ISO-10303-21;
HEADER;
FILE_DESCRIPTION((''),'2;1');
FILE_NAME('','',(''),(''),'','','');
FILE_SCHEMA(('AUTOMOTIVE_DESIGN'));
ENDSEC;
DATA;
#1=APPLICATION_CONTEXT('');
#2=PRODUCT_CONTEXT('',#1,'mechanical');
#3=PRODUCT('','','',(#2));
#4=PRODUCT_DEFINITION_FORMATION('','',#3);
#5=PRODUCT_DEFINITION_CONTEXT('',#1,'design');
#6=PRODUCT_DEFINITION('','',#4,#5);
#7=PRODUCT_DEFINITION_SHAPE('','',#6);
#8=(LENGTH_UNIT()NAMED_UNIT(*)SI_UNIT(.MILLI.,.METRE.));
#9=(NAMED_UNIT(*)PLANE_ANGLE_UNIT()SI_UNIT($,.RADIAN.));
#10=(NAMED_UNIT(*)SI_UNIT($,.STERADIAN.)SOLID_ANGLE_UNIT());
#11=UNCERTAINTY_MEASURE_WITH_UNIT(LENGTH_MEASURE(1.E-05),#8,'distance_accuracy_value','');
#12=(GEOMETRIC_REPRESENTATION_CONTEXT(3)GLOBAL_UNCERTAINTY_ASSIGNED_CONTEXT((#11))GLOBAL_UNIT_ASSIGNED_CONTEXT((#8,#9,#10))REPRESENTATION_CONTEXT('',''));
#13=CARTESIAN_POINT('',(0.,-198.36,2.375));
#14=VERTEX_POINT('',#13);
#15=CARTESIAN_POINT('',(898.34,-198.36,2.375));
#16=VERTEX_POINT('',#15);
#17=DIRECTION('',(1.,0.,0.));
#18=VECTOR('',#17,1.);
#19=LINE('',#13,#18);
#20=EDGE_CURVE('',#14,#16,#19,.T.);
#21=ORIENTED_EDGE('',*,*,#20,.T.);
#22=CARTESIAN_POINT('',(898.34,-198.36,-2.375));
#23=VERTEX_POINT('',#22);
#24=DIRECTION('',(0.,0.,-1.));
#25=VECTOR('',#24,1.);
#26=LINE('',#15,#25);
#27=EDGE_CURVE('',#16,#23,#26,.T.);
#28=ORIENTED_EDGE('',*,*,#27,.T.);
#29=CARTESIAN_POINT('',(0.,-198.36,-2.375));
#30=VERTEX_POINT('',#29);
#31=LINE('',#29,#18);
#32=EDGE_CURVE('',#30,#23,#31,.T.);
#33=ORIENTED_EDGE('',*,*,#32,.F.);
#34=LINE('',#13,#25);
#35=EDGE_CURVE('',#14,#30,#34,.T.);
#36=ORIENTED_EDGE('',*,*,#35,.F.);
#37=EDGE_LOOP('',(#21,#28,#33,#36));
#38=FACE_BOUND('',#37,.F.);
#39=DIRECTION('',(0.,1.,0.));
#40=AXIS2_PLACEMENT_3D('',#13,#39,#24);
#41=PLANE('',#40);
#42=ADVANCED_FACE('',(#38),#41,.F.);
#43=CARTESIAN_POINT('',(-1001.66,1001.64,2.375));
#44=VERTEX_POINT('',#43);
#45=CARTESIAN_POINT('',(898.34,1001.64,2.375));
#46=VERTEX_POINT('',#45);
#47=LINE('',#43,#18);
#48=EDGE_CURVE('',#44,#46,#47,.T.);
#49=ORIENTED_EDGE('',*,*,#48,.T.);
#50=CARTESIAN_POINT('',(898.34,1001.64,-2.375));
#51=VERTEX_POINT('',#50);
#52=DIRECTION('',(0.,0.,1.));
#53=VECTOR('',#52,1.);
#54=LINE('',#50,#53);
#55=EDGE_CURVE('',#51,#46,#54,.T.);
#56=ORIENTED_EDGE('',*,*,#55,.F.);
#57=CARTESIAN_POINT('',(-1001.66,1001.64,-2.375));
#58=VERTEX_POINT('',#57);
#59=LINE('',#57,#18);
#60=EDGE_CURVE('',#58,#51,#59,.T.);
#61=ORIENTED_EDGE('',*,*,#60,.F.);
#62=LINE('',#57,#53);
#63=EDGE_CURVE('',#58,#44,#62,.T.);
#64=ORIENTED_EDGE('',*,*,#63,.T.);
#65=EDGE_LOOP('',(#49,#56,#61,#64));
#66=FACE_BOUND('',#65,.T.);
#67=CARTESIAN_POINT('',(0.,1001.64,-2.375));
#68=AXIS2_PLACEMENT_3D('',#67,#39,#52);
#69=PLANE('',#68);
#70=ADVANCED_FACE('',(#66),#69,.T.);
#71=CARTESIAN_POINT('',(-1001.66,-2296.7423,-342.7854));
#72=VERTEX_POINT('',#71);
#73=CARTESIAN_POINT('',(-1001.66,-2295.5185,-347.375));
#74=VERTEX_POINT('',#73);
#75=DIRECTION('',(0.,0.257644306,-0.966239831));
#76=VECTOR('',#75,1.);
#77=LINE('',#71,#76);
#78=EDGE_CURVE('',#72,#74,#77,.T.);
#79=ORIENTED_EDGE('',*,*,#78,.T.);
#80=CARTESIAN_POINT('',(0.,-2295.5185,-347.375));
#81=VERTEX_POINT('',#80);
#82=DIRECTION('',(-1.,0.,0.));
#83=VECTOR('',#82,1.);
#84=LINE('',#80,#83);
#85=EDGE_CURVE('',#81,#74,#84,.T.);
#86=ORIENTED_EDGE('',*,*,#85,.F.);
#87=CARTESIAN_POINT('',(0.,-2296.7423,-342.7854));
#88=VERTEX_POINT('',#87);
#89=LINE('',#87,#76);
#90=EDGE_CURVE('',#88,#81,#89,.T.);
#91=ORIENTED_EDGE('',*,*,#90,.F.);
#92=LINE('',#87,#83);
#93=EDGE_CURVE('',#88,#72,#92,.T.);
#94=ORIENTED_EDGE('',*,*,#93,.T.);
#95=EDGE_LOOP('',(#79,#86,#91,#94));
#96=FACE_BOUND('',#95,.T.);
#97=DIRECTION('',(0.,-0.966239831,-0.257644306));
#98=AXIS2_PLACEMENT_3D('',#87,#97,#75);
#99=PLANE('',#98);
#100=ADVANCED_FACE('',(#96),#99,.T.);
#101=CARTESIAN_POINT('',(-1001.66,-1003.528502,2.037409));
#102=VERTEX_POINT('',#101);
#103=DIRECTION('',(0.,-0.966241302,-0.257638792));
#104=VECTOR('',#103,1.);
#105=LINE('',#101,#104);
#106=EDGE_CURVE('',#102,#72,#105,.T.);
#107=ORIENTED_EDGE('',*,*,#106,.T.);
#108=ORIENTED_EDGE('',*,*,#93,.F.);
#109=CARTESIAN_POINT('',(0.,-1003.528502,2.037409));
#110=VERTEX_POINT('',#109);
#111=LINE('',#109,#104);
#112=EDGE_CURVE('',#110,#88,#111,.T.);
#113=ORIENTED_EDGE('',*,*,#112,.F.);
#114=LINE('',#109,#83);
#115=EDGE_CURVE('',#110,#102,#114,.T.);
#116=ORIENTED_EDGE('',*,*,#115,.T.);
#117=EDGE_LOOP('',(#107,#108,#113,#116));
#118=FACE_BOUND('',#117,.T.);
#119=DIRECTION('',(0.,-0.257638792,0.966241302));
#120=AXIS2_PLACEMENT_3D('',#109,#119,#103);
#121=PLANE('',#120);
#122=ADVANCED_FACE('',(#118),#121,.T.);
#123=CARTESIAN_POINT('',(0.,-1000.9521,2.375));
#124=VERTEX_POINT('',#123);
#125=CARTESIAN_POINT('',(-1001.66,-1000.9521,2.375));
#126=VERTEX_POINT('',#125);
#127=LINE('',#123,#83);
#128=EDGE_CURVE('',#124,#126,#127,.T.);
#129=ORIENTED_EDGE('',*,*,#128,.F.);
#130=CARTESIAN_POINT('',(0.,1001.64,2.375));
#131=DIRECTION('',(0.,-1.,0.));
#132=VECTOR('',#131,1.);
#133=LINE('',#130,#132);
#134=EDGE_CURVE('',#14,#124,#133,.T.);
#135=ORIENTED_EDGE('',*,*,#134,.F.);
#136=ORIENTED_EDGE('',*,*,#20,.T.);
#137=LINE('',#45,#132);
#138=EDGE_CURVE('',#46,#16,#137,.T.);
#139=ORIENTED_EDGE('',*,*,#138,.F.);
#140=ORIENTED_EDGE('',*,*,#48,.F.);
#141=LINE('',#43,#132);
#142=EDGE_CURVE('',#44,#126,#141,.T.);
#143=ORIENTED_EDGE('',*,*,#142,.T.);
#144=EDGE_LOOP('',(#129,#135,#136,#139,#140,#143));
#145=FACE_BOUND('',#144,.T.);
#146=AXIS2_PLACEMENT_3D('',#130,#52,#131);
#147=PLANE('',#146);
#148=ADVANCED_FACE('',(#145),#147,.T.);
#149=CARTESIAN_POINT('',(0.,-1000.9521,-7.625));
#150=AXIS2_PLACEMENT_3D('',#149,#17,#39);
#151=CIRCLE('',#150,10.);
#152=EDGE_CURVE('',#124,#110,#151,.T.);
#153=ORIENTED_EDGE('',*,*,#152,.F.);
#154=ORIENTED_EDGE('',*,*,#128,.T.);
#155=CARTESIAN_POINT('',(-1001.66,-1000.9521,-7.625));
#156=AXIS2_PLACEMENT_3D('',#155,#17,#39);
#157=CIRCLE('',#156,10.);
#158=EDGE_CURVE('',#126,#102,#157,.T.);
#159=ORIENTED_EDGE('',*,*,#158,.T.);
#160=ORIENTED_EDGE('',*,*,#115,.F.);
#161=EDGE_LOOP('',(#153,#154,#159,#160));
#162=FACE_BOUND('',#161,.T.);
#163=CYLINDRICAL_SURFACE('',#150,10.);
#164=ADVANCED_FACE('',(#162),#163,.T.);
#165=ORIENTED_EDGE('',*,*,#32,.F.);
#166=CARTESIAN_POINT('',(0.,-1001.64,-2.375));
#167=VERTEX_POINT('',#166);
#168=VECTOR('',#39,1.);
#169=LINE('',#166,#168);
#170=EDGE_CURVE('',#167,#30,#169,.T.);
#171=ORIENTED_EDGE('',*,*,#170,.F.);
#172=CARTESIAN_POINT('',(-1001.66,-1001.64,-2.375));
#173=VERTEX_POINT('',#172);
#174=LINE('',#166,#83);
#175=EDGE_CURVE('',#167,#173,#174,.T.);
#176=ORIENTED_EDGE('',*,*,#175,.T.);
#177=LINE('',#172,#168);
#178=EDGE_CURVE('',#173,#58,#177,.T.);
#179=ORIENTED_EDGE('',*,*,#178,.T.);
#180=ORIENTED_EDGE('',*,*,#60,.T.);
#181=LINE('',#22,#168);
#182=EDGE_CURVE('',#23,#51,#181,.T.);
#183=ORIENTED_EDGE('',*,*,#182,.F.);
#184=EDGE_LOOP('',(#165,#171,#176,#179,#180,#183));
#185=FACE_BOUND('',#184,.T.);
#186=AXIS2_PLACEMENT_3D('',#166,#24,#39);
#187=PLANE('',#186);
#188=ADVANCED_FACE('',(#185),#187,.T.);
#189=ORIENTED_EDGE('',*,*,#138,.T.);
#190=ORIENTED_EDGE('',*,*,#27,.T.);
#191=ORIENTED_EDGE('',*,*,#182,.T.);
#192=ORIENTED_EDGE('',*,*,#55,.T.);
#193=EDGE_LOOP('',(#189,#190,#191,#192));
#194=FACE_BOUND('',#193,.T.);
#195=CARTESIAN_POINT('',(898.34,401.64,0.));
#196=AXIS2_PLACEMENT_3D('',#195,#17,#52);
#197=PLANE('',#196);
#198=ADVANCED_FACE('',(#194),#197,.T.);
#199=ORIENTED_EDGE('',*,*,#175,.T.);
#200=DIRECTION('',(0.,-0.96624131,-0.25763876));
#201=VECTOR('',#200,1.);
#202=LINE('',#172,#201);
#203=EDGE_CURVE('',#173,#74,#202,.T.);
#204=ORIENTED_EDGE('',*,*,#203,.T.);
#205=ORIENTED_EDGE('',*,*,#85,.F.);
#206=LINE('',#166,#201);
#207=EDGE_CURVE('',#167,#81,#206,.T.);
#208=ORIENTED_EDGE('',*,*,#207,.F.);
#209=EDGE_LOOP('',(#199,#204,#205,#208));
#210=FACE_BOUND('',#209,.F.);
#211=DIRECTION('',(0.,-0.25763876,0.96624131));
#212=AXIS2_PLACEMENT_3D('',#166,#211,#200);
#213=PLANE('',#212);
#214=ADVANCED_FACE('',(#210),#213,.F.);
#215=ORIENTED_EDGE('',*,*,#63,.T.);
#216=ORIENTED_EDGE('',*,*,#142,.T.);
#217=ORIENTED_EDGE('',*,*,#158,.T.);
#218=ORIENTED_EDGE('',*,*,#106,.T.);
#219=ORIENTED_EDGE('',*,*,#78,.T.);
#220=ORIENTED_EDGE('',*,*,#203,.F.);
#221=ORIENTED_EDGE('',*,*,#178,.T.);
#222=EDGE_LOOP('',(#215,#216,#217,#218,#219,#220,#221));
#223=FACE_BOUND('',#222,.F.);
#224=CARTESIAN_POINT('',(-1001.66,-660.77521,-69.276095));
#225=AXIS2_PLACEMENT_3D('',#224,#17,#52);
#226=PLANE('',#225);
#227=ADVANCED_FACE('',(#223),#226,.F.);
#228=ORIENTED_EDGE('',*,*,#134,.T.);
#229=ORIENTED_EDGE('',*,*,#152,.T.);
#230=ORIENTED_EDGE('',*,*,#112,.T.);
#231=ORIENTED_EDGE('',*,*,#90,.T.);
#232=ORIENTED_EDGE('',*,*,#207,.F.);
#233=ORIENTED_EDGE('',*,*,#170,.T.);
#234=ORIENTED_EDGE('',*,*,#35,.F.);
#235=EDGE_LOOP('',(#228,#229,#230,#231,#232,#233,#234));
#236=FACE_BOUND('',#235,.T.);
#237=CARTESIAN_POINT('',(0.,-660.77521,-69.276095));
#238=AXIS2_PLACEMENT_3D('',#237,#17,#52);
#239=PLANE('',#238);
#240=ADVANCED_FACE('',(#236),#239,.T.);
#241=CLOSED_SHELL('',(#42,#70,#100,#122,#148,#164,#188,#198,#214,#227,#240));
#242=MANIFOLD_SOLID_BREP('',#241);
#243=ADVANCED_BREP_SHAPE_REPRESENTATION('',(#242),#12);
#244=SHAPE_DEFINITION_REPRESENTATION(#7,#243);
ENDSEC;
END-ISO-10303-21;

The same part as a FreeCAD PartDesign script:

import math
import FreeCAD as App
import Part
import Sketcher
from FreeCAD import Vector
Q = App.Units.Quantity

doc = App.newDocument("Part")
body = doc.addObject("PartDesign::Body", "Body")

# Sketch on YZ plane
sketch1 = body.newObject("Sketcher::SketchObject", "Sketch")
sketch1.AttachmentSupport = (doc.getObject("YZ_Plane"), [""])
sketch1.MapMode = "FlatFace"
sketch1.addGeometry([
    Part.LineSegment(Vector(-2295.5, -347.4, 0), Vector(-1001.6, -2.4, 0)),  # 0
    Part.LineSegment(Vector(-1001.6, -2.4, 0), Vector(1001.6, -2.4, 0)),  # 1
    Part.LineSegment(Vector(1001.6, -2.4, 0), Vector(1001.6, 2.4, 0)),  # 2
    Part.LineSegment(Vector(1001.6, 2.4, 0), Vector(-1001, 2.4, 0)),  # 3
    Part.ArcOfCircle(Part.Circle(Vector(-1001, -7.6, 0), Vector(0, 0, 1), 10), math.radians(90), math.radians(104.93)),  # 4
    Part.LineSegment(Vector(-1003.5, 2, 0), Vector(-2296.7, -342.8, 0)),  # 5
    Part.LineSegment(Vector(-2296.7, -342.8, 0), Vector(-2295.5, -347.4, 0)),  # 6
], False)
sketch1.addConstraint([
    Sketcher.Constraint("Coincident", 0, 2, 1, 1),
    Sketcher.Constraint("Coincident", 1, 2, 2, 1),
    Sketcher.Constraint("Coincident", 2, 2, 3, 1),
    Sketcher.Constraint("Tangent", 3, 2, 4, 1),
    Sketcher.Constraint("Tangent", 4, 2, 5, 1),
    Sketcher.Constraint("Coincident", 5, 2, 6, 1),
    Sketcher.Constraint("Coincident", 6, 2, 0, 1),
    Sketcher.Constraint("Horizontal", 1),
    Sketcher.Constraint("Vertical", 2),
    Sketcher.Constraint("Horizontal", 3),
    Sketcher.Constraint("Symmetric", 0, 2, 2, 2, -1, 1),
    Sketcher.Constraint("Parallel", 0, 5),
    Sketcher.Constraint("Perpendicular", 5, 6),
    Sketcher.Constraint("Radius", 4, Q("0.3937 in")),
    Sketcher.Constraint("DistanceY", 2, 1, 2, 2, Q("0.187 in")),
    Sketcher.Constraint("DistanceX", 0, 2, -1, 1, Q("1001.64 mm")),
    Sketcher.Constraint("Angle", 0, Q("14.93 deg")),
    Sketcher.Constraint("Distance", 6, Q("0.187 in")),
    Sketcher.Constraint("DistanceY", 5, 2, 3, 2, Q("13.589 in")),
])
pad1 = body.newObject("PartDesign::Pad", "Pad")
pad1.Profile = sketch1
pad1.Length = 1001.66
pad1.Reversed = True

# Sketch on YZ plane
sketch2 = body.newObject("Sketcher::SketchObject", "Sketch001")
sketch2.AttachmentSupport = (doc.getObject("YZ_Plane"), [""])
sketch2.MapMode = "FlatFace"
sketch2.addGeometry([
    Part.LineSegment(Vector(1001.6, -2.4, 0), Vector(1001.6, 2.4, 0)),
    Part.LineSegment(Vector(1001.6, 2.4, 0), Vector(-198.4, 2.4, 0)),
    Part.LineSegment(Vector(-198.4, 2.4, 0), Vector(-198.4, -2.4, 0)),
    Part.LineSegment(Vector(-198.4, -2.4, 0), Vector(1001.6, -2.4, 0)),
], False)
sketch2.addConstraint([
    Sketcher.Constraint("Coincident", 0, 2, 1, 1),
    Sketcher.Constraint("Coincident", 1, 2, 2, 1),
    Sketcher.Constraint("Coincident", 2, 2, 3, 1),
    Sketcher.Constraint("Coincident", 3, 2, 0, 1),
    Sketcher.Constraint("Vertical", 0),
    Sketcher.Constraint("Horizontal", 1),
    Sketcher.Constraint("Vertical", 2),
    Sketcher.Constraint("Horizontal", 3),
    Sketcher.Constraint("DistanceY", 0, 1, 0, 2, Q("0.187 in")),
    Sketcher.Constraint("DistanceX", 1, 2, 1, 1, Q("47.2441 in")),
    Sketcher.Constraint("DistanceY", -1, 1, 0, 2, Q("0.0935 in")),
    Sketcher.Constraint("DistanceX", -1, 1, 0, 2, Q("1001.64 mm")),
])
pad2 = body.newObject("PartDesign::Pad", "Pad001")
pad2.Profile = sketch2
pad2.Length = 898.34

doc.recompute()
